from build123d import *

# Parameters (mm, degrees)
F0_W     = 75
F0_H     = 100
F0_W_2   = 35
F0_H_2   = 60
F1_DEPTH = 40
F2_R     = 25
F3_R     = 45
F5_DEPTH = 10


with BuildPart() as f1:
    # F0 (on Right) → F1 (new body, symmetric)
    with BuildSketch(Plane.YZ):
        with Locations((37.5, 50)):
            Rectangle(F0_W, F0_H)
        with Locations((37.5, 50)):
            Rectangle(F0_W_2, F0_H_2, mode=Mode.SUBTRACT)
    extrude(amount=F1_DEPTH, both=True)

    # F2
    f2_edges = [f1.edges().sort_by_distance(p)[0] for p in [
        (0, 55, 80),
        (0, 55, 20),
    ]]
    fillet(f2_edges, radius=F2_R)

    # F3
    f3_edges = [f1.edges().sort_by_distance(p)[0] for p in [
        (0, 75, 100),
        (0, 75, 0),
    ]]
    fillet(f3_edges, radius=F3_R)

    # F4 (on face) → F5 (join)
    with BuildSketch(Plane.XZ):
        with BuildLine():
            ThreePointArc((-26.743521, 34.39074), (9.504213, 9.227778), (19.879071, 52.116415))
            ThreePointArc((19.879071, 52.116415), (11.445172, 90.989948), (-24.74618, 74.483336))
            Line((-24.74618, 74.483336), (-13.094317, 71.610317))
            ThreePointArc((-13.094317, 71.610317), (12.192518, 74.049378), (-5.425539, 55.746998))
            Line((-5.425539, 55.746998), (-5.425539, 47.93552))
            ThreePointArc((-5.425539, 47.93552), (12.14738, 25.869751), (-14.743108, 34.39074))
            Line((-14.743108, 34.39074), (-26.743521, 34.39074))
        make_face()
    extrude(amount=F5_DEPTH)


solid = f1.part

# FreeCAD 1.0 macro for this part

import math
import FreeCAD as App
import Part
import Sketcher


def edges_at(feature, points):
    """Names of the edges that pass closest to the given points."""
    edges = feature.Shape.Edges
    near = lambda p: min(range(len(edges)), key=lambda i: edges[i].distToShape(Part.Vertex(*p))[0])
    return sorted({f"Edge{near(p) + 1}" for p in points})

doc = App.newDocument("Part")
body = doc.addObject("PartDesign::Body", "Body")

# Sketch on YZ plane
sketch1 = body.newObject("Sketcher::SketchObject", "Sketch")
sketch1.AttachmentSupport = (doc.getObject("YZ_Plane"), [""])
sketch1.MapMode = "FlatFace"
sketch1.addGeometry(Part.LineSegment(App.Vector(0, 100, 0), App.Vector(0, 0, 0)), False)
sketch1.addGeometry(Part.LineSegment(App.Vector(0, 0, 0), App.Vector(75, 0, 0)), False)
sketch1.addGeometry(Part.LineSegment(App.Vector(75, 0, 0), App.Vector(75, 100, 0)), False)
sketch1.addGeometry(Part.LineSegment(App.Vector(75, 100, 0), App.Vector(0, 100, 0)), False)
sketch1.addGeometry(Part.LineSegment(App.Vector(55, 20, 0), App.Vector(20, 20, 0)), False)
sketch1.addGeometry(Part.LineSegment(App.Vector(20, 20, 0), App.Vector(20, 80, 0)), False)
sketch1.addGeometry(Part.LineSegment(App.Vector(20, 80, 0), App.Vector(55, 80, 0)), False)
sketch1.addGeometry(Part.LineSegment(App.Vector(55, 80, 0), App.Vector(55, 20, 0)), False)
sketch1.addConstraint(Sketcher.Constraint("Coincident", 0, 2, 1, 1))
sketch1.addConstraint(Sketcher.Constraint("Coincident", 1, 2, 2, 1))
sketch1.addConstraint(Sketcher.Constraint("Coincident", 2, 2, 3, 1))
sketch1.addConstraint(Sketcher.Constraint("Coincident", 3, 2, 0, 1))
sketch1.addConstraint(Sketcher.Constraint("Coincident", 4, 2, 5, 1))
sketch1.addConstraint(Sketcher.Constraint("Coincident", 5, 2, 6, 1))
sketch1.addConstraint(Sketcher.Constraint("Coincident", 6, 2, 7, 1))
sketch1.addConstraint(Sketcher.Constraint("Coincident", 7, 2, 4, 1))
sketch1.addConstraint(Sketcher.Constraint("Vertical", 0))
sketch1.addConstraint(Sketcher.Constraint("Horizontal", 1))
sketch1.addConstraint(Sketcher.Constraint("Vertical", 2))
sketch1.addConstraint(Sketcher.Constraint("Horizontal", 3))
sketch1.addConstraint(Sketcher.Constraint("Horizontal", 4))
sketch1.addConstraint(Sketcher.Constraint("Vertical", 5))
sketch1.addConstraint(Sketcher.Constraint("Horizontal", 6))
sketch1.addConstraint(Sketcher.Constraint("Vertical", 7))
sketch1.addConstraint(Sketcher.Constraint("Coincident", 0, 2, -1, 1))
sketch1.addConstraint(Sketcher.Constraint("DistanceX", 1, 1, 1, 2, 75.0))
sketch1.addConstraint(Sketcher.Constraint("DistanceX", 4, 2, 4, 1, 35.0))
sketch1.addConstraint(Sketcher.Constraint("DistanceY", 0, 2, 0, 1, 100.0))
sketch1.addConstraint(Sketcher.Constraint("DistanceY", 5, 1, 5, 2, 60.0))
sketch1.addConstraint(Sketcher.Constraint("DistanceX", -1, 1, 4, 2, 20.0))
sketch1.addConstraint(Sketcher.Constraint("DistanceY", -1, 1, 4, 2, 20.0))
pad1 = body.newObject("PartDesign::Pad", "Pad")
pad1.Profile = sketch1
pad1.Length = 80
pad1.Midplane = True
doc.recompute()

fillet = body.newObject("PartDesign::Fillet", "Fillet")
fillet.Base = (pad1, edges_at(pad1, [(0, 55, 80), (0, 55, 20)]))
fillet.Radius = 25
doc.recompute()

fillet2 = body.newObject("PartDesign::Fillet", "Fillet001")
fillet2.Base = (fillet, edges_at(fillet, [(0, 75, 100), (0, 75, 0)]))
fillet2.Radius = 45

# Sketch on XZ plane
sketch2 = body.newObject("Sketcher::SketchObject", "Sketch001")
sketch2.AttachmentSupport = (doc.getObject("XZ_Plane"), [""])
sketch2.MapMode = "FlatFace"
sketch2.addGeometry(Part.ArcOfCircle(Part.Circle(App.Vector(0, 34, 0), App.Vector(0, 0, 1), 27), math.radians(180), math.radians(402)), False)
sketch2.addGeometry(Part.ArcOfCircle(Part.Circle(App.Vector(0, 68, 0), App.Vector(0, 0, 1), 26), math.radians(-39), math.radians(166)), False)
sketch2.addGeometry(Part.LineSegment(App.Vector(-25, 74, 0), App.Vector(-13, 72, 0)), False)
sketch2.addGeometry(Part.ArcOfCircle(Part.Circle(App.Vector(0, 68, 0), App.Vector(0, 0, 1), 14), math.radians(-114), math.radians(165)), False)
sketch2.addGeometry(Part.LineSegment(App.Vector(-5, 56, 0), App.Vector(-5, 48, 0)), False)
sketch2.addGeometry(Part.ArcOfCircle(Part.Circle(App.Vector(0, 34, 0), App.Vector(0, 0, 1), 15), math.radians(179), math.radians(472)), False)
sketch2.addGeometry(Part.LineSegment(App.Vector(-15, 34, 0), App.Vector(-27, 34, 0)), False)
sketch2.addConstraint(Sketcher.Constraint("Coincident", 0, 2, 1, 1))
sketch2.addConstraint(Sketcher.Constraint("Coincident", 1, 2, 2, 1))
sketch2.addConstraint(Sketcher.Constraint("Coincident", 2, 2, 3, 2))
sketch2.addConstraint(Sketcher.Constraint("Coincident", 3, 1, 4, 1))
sketch2.addConstraint(Sketcher.Constraint("Coincident", 4, 2, 5, 2))
sketch2.addConstraint(Sketcher.Constraint("Coincident", 5, 1, 6, 1))
sketch2.addConstraint(Sketcher.Constraint("Coincident", 6, 2, 0, 1))
sketch2.addConstraint(Sketcher.Constraint("Vertical", 4))
sketch2.addConstraint(Sketcher.Constraint("Horizontal", 6))
sketch2.addConstraint(Sketcher.Constraint("Coincident", 3, 3, 1, 3))
sketch2.addConstraint(Sketcher.Constraint("Coincident", 5, 3, 0, 3))
sketch2.addConstraint(Sketcher.Constraint("PointOnObject", 0, 3, -2))
sketch2.addConstraint(Sketcher.Constraint("PointOnObject", 1, 3, -2))
sketch2.addConstraint(Sketcher.Constraint("Radius", 0, 26.744028))
sketch2.addConstraint(Sketcher.Constraint("Radius", 5, 14.744028))
sketch2.addConstraint(Sketcher.Constraint("Radius", 1, 25.542496))
sketch2.addConstraint(Sketcher.Constraint("Radius", 3, 13.542496))
sketch2.addConstraint(Sketcher.Constraint("DistanceY", 4, 2, 4, 1, 7.811478))
sketch2.addConstraint(Sketcher.Constraint("DistanceY", 0, 3, 1, 2, 40.257298))
sketch2.addConstraint(Sketcher.Constraint("DistanceY", 0, 2, 2, 2, 19.493902))
sketch2.addConstraint(Sketcher.Constraint("DistanceY", 5, 3, 5, 1, 0.164702))
sketch2.addConstraint(Sketcher.Constraint("DistanceY", -1, 1, 1, 3, 68.155169))
sketch2.addConstraint(Sketcher.Constraint("DistanceY", -1, 1, 5, 3, 34.226038))
pad2 = body.newObject("PartDesign::Pad", "Pad001")
pad2.Profile = sketch2
pad2.Length = 10

doc.recompute()
